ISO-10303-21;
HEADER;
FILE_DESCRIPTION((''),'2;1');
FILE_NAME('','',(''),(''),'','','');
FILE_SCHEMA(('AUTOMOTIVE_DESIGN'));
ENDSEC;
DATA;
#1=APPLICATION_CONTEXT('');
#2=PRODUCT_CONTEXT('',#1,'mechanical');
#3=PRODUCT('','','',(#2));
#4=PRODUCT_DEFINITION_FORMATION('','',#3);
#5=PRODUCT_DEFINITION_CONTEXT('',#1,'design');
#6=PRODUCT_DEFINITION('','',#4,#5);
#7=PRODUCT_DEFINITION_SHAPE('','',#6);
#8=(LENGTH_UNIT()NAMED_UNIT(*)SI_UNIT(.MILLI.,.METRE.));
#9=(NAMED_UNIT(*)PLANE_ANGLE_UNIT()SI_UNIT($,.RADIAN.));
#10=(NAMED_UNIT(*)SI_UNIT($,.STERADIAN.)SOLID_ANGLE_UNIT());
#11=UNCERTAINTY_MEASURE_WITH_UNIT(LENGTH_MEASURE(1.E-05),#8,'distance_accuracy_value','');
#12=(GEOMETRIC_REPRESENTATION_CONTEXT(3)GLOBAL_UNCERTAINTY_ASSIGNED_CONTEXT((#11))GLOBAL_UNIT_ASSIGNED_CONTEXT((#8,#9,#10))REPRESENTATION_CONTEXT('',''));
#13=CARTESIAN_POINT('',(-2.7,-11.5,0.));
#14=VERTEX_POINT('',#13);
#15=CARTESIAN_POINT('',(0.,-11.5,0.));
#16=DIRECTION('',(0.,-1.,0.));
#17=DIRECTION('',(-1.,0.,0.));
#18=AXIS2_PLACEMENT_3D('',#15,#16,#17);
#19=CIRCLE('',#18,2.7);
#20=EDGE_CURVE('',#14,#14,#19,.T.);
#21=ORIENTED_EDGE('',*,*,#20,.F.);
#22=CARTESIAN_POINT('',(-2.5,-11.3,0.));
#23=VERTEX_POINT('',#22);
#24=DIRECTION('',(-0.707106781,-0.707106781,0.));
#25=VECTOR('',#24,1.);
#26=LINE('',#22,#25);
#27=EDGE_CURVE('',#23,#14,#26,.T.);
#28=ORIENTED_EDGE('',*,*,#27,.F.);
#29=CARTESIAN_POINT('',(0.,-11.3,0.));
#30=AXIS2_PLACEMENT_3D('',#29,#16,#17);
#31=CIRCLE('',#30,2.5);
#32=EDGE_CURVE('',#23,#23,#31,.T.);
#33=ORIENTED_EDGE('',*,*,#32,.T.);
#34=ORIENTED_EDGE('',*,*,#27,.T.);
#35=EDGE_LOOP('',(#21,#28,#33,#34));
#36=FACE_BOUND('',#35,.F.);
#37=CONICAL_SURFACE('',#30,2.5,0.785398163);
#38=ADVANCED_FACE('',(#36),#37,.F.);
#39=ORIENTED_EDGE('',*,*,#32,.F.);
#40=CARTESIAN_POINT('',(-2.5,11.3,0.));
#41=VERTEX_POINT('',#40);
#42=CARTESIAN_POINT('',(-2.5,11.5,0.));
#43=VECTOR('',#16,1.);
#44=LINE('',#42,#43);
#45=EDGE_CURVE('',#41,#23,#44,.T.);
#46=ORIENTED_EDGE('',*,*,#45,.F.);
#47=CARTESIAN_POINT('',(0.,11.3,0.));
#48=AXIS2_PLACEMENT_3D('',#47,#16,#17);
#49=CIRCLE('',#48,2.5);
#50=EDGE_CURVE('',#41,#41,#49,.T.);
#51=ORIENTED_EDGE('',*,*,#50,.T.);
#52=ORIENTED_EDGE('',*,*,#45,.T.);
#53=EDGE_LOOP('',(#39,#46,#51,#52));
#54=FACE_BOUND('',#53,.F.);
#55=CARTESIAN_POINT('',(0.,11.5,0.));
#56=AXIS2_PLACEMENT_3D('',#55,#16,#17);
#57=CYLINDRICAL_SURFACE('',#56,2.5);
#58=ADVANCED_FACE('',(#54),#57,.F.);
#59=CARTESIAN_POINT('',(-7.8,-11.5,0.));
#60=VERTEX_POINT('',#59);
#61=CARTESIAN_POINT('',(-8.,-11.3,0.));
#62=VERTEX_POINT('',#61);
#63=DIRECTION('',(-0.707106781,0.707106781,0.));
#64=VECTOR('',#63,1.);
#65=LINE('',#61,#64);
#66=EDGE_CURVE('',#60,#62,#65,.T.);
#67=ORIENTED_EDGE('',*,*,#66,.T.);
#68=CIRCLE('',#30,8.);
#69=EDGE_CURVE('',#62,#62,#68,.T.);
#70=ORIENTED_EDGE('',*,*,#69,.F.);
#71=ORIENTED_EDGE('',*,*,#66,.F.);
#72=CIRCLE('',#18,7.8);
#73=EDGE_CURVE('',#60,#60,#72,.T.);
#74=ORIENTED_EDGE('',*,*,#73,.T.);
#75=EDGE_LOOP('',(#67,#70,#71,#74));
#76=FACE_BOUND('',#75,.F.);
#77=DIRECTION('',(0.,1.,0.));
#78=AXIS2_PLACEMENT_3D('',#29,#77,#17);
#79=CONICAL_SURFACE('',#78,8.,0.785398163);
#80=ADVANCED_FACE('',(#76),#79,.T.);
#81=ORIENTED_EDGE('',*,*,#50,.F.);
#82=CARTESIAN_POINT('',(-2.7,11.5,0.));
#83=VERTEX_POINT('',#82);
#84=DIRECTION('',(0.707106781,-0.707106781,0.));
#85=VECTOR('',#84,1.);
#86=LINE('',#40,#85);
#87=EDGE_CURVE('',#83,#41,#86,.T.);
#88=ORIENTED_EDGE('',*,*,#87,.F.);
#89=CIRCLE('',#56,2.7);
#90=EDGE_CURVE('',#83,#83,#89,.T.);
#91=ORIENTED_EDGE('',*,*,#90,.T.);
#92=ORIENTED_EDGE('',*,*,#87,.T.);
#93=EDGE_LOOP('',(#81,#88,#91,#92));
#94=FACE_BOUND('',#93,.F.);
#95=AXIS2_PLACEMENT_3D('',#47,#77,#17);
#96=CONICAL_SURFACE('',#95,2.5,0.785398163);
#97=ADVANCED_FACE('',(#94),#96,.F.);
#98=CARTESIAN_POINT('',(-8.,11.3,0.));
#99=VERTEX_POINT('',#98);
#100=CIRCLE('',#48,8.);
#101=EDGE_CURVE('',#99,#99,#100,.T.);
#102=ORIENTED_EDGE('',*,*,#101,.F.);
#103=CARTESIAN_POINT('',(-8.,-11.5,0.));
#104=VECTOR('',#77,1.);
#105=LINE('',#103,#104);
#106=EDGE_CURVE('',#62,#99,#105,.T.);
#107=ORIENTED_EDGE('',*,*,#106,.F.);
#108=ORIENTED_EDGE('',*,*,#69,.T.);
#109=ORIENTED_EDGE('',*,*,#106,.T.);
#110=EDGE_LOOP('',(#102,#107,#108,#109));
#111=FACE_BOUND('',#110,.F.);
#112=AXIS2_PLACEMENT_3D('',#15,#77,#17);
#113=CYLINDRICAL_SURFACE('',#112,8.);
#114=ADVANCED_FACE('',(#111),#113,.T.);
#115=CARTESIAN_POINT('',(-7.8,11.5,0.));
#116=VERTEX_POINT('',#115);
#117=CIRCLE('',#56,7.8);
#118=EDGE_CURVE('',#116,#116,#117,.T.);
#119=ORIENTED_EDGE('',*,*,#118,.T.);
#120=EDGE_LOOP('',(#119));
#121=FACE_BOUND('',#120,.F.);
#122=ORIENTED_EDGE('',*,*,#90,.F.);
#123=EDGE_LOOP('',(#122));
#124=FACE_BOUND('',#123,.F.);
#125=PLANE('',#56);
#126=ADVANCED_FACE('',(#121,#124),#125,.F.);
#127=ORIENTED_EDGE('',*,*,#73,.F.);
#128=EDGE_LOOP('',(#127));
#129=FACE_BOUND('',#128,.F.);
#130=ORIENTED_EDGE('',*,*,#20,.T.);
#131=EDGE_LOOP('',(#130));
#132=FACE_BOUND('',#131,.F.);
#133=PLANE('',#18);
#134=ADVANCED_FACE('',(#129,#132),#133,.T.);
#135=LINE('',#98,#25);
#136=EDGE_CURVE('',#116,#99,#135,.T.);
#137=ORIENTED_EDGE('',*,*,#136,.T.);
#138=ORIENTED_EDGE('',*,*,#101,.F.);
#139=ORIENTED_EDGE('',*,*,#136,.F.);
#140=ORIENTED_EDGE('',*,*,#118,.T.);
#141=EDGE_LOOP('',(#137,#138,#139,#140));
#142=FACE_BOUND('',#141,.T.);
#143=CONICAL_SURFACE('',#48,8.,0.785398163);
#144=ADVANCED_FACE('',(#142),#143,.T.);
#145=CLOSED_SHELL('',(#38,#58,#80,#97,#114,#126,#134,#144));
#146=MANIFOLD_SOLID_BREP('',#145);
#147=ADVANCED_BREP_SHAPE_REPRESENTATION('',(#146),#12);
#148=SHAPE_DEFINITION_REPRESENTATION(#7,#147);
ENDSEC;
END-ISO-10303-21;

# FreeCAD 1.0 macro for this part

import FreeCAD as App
import Part
import Sketcher

V = App.Vector
Q = App.Units.Quantity


def edges_at(feature, points):
    """Names of the edges that pass closest to the given points."""
    edges = feature.Shape.Edges
    near = lambda p: min(range(len(edges)), key=lambda i: edges[i].distToShape(Part.Vertex(*p))[0])
    return sorted({f"Edge{near(p) + 1}" for p in points})

doc = App.newDocument("Part")
body = doc.addObject("PartDesign::Body", "Body")

sketch1 = body.newObject("Sketcher::SketchObject", "Sketch")
sketch1.AttachmentSupport = (doc.getObject("XY_Plane"), [""])
sketch1.MapMode = "FlatFace"
sketch1.addGeometry(Part.LineSegment(V(-2.5, 11.5, 0), V(-8, 11.5, 0)), False)
sketch1.addGeometry(Part.LineSegment(V(-8, 11.5, 0), V(-8, -11.5, 0)), False)
sketch1.addGeometry(Part.LineSegment(V(-8, -11.5, 0), V(-2.5, -11.5, 0)), False)
sketch1.addGeometry(Part.LineSegment(V(-2.5, -11.5, 0), V(-2.5, 11.5, 0)), False)
sketch1.addConstraint(Sketcher.Constraint("Coincident", 0, 2, 1, 1))
sketch1.addConstraint(Sketcher.Constraint("Coincident", 1, 2, 2, 1))
sketch1.addConstraint(Sketcher.Constraint("Coincident", 2, 2, 3, 1))
sketch1.addConstraint(Sketcher.Constraint("Coincident", 3, 2, 0, 1))
sketch1.addConstraint(Sketcher.Constraint("Horizontal", 0))
sketch1.addConstraint(Sketcher.Constraint("Vertical", 1))
sketch1.addConstraint(Sketcher.Constraint("Horizontal", 2))
sketch1.addConstraint(Sketcher.Constraint("Vertical", 3))
sketch1.addConstraint(Sketcher.Constraint("DistanceY", 1, 2, 1, 1, Q("23 mm")))
sketch1.addConstraint(Sketcher.Constraint("DistanceX", 0, 2, 0, 1, Q("5.5 mm")))
sketch1.addConstraint(Sketcher.Constraint("DistanceX", 0, 2, -1, 1, Q("8 mm")))
sketch1.addConstraint(Sketcher.Constraint("DistanceY", -1, 1, 0, 2, Q("11.5 mm")))
revolution = body.newObject("PartDesign::Revolution", "Revolution")
revolution.Profile = sketch1
revolution.ReferenceAxis = (sketch1, ["V_Axis"])
revolution.Angle = 360
doc.recompute()

chamfer = body.newObject("PartDesign::Chamfer", "Chamfer")
chamfer.Base = (revolution, edges_at(revolution, [
    (8, 11.5, 0),
    (2.5, 11.5, 0),
    (8, -11.5, 0),
    (2.5, -11.5, 0),
]))
chamfer.Size = 0.2

doc.recompute()
